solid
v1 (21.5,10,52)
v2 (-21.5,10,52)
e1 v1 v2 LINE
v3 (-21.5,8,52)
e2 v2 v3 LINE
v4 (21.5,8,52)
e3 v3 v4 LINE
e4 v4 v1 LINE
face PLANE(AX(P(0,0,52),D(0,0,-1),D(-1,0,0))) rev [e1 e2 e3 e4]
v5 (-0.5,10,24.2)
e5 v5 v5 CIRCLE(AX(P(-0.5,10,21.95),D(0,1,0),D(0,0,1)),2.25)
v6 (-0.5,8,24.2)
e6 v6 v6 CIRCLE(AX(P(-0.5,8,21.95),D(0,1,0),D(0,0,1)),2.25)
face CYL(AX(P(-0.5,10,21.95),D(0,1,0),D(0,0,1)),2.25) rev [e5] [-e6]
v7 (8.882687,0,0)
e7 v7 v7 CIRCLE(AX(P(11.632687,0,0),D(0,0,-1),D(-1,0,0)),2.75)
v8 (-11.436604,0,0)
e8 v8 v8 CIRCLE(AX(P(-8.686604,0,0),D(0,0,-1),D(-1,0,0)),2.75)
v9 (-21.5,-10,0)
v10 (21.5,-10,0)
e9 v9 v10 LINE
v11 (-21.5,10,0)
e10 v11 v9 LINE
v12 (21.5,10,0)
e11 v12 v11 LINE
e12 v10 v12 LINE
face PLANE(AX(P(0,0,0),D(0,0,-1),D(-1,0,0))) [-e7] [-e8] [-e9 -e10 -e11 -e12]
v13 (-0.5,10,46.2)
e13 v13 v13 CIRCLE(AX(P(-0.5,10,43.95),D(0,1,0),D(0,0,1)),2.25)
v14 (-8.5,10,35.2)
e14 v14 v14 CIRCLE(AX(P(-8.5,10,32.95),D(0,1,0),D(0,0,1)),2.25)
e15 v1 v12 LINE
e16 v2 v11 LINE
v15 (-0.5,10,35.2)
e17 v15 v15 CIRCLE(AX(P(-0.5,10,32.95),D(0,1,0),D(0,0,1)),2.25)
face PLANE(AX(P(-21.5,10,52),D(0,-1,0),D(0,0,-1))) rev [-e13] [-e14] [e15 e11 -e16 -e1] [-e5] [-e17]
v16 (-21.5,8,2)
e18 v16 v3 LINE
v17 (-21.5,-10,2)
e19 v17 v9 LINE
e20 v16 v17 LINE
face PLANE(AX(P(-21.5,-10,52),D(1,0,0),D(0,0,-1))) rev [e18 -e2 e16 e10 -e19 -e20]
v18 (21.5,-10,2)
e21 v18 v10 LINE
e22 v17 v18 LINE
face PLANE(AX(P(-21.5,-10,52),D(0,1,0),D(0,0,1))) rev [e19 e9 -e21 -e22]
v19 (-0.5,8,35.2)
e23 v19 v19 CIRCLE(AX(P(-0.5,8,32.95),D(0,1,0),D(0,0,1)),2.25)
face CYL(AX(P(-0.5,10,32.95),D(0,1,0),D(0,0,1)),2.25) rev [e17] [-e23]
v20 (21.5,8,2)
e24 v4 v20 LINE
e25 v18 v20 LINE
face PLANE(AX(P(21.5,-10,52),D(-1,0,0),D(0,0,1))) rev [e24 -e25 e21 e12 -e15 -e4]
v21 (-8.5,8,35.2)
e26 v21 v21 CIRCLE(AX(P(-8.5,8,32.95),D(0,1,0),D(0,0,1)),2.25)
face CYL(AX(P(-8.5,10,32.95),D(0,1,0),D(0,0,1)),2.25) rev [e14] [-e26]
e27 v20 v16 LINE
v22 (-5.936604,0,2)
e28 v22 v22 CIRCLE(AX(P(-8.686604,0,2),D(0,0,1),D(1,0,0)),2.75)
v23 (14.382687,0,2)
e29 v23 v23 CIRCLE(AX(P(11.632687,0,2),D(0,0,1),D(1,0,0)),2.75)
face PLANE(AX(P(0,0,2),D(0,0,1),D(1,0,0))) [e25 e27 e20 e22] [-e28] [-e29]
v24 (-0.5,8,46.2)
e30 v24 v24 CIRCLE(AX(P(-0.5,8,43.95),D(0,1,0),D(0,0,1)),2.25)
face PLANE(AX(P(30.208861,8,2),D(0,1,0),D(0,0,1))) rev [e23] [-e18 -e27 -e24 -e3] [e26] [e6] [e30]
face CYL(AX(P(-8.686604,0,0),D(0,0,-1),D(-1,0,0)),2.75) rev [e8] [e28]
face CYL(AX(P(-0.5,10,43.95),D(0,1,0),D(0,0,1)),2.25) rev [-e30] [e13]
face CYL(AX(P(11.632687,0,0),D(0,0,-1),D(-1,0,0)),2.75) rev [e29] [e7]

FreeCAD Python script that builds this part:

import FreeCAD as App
import Part
import Sketcher
from FreeCAD import Vector
Q = App.Units.Quantity

doc = App.newDocument("Part")
body = doc.addObject("PartDesign::Body", "Body")

sketch1 = body.newObject("Sketcher::SketchObject", "Sketch")
sketch1.AttachmentSupport = (doc.getObject("XY_Plane"), [""])
sketch1.MapMode = "FlatFace"
sketch1.addGeometry(Part.LineSegment(Vector(-22, 10, 0), Vector(-22, -10, 0)), False)
sketch1.addGeometry(Part.LineSegment(Vector(-22, -10, 0), Vector(22, -10, 0)), False)
sketch1.addGeometry(Part.LineSegment(Vector(22, -10, 0), Vector(22, 10, 0)), False)
sketch1.addGeometry(Part.LineSegment(Vector(22, 10, 0), Vector(-22, 10, 0)), False)
sketch1.addConstraint(Sketcher.Constraint("Coincident", 0, 2, 1, 1))
sketch1.addConstraint(Sketcher.Constraint("Coincident", 1, 2, 2, 1))
sketch1.addConstraint(Sketcher.Constraint("Coincident", 2, 2, 3, 1))
sketch1.addConstraint(Sketcher.Constraint("Coincident", 3, 2, 0, 1))
sketch1.addConstraint(Sketcher.Constraint("Vertical", 0))
sketch1.addConstraint(Sketcher.Constraint("Horizontal", 1))
sketch1.addConstraint(Sketcher.Constraint("Vertical", 2))
sketch1.addConstraint(Sketcher.Constraint("Horizontal", 3))
sketch1.addConstraint(Sketcher.Constraint("Symmetric", 0, 2, 2, 2, -1, 1))
sketch1.addConstraint(Sketcher.Constraint("DistanceX", 1, 1, 1, 2, Q("43 mm")))
sketch1.addConstraint(Sketcher.Constraint("DistanceY", 0, 2, 0, 1, Q("20 mm")))
pad1 = body.newObject("PartDesign::Pad", "Pad")
pad1.Profile = sketch1
pad1.Length = 52

sketch2 = body.newObject("Sketcher::SketchObject", "Sketch001")
sketch2.AttachmentSupport = (doc.getObject("XY_Plane"), [""])
sketch2.MapMode = "FlatFace"
sketch2.AttachmentOffset = App.Placement(Vector(0, 0, 52), App.Rotation())
sketch2.addGeometry(Part.LineSegment(Vector(-27, 8, 0), Vector(-27, -14, 0)), False)
sketch2.addGeometry(Part.LineSegment(Vector(-27, -14, 0), Vector(30, -14, 0)), False)
sketch2.addGeometry(Part.LineSegment(Vector(30, -14, 0), Vector(30, 8, 0)), False)
sketch2.addGeometry(Part.LineSegment(Vector(30, 8, 0), Vector(-27, 8, 0)), False)
sketch2.addConstraint(Sketcher.Constraint("Coincident", 0, 2, 1, 1))
sketch2.addConstraint(Sketcher.Constraint("Coincident", 1, 2, 2, 1))
sketch2.addConstraint(Sketcher.Constraint("Coincident", 2, 2, 3, 1))
sketch2.addConstraint(Sketcher.Constraint("Coincident", 3, 2, 0, 1))
sketch2.addConstraint(Sketcher.Constraint("Vertical", 0))
sketch2.addConstraint(Sketcher.Constraint("Horizontal", 1))
sketch2.addConstraint(Sketcher.Constraint("Vertical", 2))
sketch2.addConstraint(Sketcher.Constraint("Horizontal", 3))
sketch2.addConstraint(Sketcher.Constraint("DistanceY", -1, 1, 2, 2, Q("8 mm")))
sketch2.addConstraint(Sketcher.Constraint("DistanceY", 0, 2, 0, 1, Q("21.94431 mm")))
sketch2.addConstraint(Sketcher.Constraint("DistanceX", 1, 1, 1, 2, Q("57.277645 mm")))
sketch2.addConstraint(Sketcher.Constraint("DistanceX", -1, 1, 1, 2, Q("30.208861 mm")))
pocket1 = body.newObject("PartDesign::Pocket", "Pocket")
pocket1.Profile = sketch2
pocket1.Length = 50

sketch3 = body.newObject("Sketcher::SketchObject", "Sketch002")
sketch3.AttachmentSupport = (doc.getObject("XZ_Plane"), [""])
sketch3.MapMode = "FlatFace"
sketch3.AttachmentOffset = App.Placement(Vector(0, 0, -10), App.Rotation())
sketch3.addGeometry(Part.Circle(Vector(-0.5, 21.9, 0), Vector(0, 0, 1), 2.2), False)
sketch3.addGeometry(Part.Circle(Vector(-0.5, 33, 0), Vector(0, 0, 1), 2.2), False)
sketch3.addGeometry(Part.Circle(Vector(-0.5, 44, 0), Vector(0, 0, 1), 2.2), False)
sketch3.addGeometry(Part.Circle(Vector(-8.5, 33, 0), Vector(0, 0, 1), 2.2), False)
sketch3.addConstraint(Sketcher.Constraint("Equal", 0, 1))
sketch3.addConstraint(Sketcher.Constraint("Equal", 1, 2))
sketch3.addConstraint(Sketcher.Constraint("Equal", 2, 3))
sketch3.addConstraint(Sketcher.Constraint("Horizontal", 1, 3, 3, 3))
sketch3.addConstraint(Sketcher.Constraint("Vertical", 0, 3, 1, 3))
sketch3.addConstraint(Sketcher.Constraint("Vertical", 1, 3, 2, 3))
sketch3.addConstraint(Sketcher.Constraint("Diameter", 0, Q("4.5 mm")))
sketch3.addConstraint(Sketcher.Constraint("DistanceY", 0, 3, 1, 3, Q("11 mm")))
sketch3.addConstraint(Sketcher.Constraint("DistanceY", 1, 3, 2, 3, Q("11 mm")))
sketch3.addConstraint(Sketcher.Constraint("DistanceX", 3, 3, 1, 3, Q("8 mm")))
sketch3.addConstraint(Sketcher.Constraint("DistanceX", 0, 3, -1, 1, Q("0.5 mm")))
sketch3.addConstraint(Sketcher.Constraint("DistanceY", -1, 1, 0, 3, Q("21.95 mm")))
doc.recompute()
hole = body.newObject("PartDesign::Hole", "Hole")
hole.Profile = sketch3
hole.ThreadType = "None"
hole.Diameter = 4.5
hole.DepthType = "ThroughAll"
hole.Reversed = True

sketch4 = body.newObject("Sketcher::SketchObject", "Sketch003")
sketch4.AttachmentSupport = (doc.getObject("XY_Plane"), [""])
sketch4.MapMode = "FlatFace"
sketch4.addGeometry(Part.Circle(Vector(11.6, 0, 0), Vector(0, 0, 1), 2.8), False)
sketch4.addGeometry(Part.Circle(Vector(-8.7, 0, 0), Vector(0, 0, 1), 2.8), False)
sketch4.addConstraint(Sketcher.Constraint("Equal", 0, 1))
sketch4.addConstraint(Sketcher.Constraint("PointOnObject", 0, 3, -1))
sketch4.addConstraint(Sketcher.Constraint("PointOnObject", 1, 3, -1))
sketch4.addConstraint(Sketcher.Constraint("Diameter", 0, Q("5.5 mm")))
sketch4.addConstraint(Sketcher.Constraint("DistanceX", 1, 3, 0, 3, Q("20.319291 mm")))
sketch4.addConstraint(Sketcher.Constraint("DistanceX", -1, 1, 0, 3, Q("11.632687 mm")))
doc.recompute()
hole2 = body.newObject("PartDesign::Hole", "Hole001")
hole2.Profile = sketch4
hole2.ThreadType = "None"
hole2.Diameter = 5.5
hole2.DepthType = "ThroughAll"
hole2.Reversed = True

doc.recompute()
